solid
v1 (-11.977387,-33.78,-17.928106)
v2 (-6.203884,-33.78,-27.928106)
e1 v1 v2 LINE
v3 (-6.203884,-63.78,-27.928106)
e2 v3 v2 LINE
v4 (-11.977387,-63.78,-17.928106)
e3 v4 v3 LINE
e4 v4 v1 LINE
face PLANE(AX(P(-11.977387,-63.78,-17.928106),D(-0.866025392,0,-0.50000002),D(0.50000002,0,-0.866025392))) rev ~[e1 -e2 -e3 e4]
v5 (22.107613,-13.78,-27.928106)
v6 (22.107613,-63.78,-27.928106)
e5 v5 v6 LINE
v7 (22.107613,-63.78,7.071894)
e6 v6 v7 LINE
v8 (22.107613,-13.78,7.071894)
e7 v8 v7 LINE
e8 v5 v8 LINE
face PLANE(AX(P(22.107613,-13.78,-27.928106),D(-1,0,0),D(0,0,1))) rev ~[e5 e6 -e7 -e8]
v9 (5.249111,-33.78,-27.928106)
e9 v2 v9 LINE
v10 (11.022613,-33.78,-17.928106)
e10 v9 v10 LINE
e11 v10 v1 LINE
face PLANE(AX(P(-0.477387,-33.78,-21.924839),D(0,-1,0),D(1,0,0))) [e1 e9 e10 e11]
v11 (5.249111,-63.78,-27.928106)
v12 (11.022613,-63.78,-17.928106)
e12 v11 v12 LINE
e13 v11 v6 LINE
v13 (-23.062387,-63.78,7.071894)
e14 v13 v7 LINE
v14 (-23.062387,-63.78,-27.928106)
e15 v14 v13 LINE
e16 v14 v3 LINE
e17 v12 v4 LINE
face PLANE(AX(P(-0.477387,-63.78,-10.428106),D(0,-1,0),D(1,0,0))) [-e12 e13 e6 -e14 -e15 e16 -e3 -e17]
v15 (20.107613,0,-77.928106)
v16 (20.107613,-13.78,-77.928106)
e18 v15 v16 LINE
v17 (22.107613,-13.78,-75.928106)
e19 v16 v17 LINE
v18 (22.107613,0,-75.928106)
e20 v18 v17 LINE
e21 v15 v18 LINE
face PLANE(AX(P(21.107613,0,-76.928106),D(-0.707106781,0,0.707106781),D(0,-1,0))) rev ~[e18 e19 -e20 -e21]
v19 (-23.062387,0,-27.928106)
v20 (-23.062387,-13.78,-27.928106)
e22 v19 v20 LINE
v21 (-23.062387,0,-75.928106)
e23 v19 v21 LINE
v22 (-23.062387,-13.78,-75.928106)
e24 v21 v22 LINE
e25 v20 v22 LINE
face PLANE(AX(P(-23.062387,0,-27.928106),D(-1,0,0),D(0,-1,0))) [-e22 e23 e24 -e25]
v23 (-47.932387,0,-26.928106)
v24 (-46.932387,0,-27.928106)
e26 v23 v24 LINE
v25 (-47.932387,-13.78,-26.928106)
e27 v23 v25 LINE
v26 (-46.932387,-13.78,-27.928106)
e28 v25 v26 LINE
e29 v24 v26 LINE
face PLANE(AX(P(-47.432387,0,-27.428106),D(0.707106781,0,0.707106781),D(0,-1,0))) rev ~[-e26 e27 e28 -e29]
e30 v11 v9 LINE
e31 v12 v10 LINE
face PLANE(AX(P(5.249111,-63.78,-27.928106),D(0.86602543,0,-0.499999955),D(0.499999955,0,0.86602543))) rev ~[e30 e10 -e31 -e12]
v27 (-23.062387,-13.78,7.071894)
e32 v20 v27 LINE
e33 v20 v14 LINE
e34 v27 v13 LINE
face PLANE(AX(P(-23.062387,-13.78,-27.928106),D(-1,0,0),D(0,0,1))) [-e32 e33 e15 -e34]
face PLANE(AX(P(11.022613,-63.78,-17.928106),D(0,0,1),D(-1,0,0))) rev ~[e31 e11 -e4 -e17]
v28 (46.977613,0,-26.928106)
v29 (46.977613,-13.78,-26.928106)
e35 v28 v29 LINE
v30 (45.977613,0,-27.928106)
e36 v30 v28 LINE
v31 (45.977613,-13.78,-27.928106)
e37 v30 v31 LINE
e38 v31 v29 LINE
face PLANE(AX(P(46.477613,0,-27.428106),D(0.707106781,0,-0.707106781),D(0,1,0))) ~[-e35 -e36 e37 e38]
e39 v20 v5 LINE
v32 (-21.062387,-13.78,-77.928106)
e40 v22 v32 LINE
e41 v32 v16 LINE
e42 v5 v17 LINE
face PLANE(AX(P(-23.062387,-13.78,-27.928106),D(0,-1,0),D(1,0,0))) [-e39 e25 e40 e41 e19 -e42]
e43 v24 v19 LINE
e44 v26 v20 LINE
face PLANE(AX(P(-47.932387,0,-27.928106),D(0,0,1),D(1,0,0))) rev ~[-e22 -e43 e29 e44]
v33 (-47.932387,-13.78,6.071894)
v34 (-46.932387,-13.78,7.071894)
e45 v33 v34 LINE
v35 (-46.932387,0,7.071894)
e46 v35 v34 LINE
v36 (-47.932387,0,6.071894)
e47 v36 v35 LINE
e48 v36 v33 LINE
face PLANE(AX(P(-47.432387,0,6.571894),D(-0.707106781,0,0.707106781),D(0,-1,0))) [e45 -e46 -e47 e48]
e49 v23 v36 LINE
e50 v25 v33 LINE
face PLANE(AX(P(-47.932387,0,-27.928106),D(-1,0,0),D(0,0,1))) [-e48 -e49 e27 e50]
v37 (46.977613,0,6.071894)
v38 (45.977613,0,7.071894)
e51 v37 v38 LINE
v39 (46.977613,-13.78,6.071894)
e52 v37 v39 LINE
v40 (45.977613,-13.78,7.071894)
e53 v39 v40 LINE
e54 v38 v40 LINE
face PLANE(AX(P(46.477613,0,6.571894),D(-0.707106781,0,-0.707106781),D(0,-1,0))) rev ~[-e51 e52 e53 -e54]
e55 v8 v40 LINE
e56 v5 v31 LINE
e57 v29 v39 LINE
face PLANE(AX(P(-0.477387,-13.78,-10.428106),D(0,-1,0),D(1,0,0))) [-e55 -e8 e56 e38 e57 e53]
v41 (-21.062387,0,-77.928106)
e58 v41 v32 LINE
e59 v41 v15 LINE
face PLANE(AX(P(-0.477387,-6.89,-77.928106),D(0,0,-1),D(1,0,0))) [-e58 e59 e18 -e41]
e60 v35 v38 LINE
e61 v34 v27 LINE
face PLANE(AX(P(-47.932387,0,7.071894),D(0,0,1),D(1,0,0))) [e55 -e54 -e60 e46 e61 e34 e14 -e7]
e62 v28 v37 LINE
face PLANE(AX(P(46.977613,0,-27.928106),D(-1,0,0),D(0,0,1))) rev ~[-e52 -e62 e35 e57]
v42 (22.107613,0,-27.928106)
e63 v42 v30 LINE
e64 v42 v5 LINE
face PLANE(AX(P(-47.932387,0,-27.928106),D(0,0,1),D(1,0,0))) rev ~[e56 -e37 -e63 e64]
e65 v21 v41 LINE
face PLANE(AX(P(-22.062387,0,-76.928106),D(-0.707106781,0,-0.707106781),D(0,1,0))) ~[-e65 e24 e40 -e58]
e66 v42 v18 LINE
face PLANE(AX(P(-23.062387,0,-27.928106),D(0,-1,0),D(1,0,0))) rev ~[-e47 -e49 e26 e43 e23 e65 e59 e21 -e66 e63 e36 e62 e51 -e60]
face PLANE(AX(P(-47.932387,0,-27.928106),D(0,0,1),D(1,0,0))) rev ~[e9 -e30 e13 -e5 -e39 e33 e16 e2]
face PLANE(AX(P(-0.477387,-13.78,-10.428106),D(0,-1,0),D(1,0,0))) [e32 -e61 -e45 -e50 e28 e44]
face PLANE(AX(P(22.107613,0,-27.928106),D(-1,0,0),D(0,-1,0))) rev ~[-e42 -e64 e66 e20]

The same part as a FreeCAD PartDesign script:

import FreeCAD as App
import Part
import Sketcher
Q = App.Units.Quantity


def edges_at(feature, points):
    """Names of the edges that pass closest to the given points."""
    edges = feature.Shape.Edges
    near = lambda p: min(range(len(edges)), key=lambda i: edges[i].distToShape(Part.Vertex(*p))[0])
    return sorted({f"Edge{near(p) + 1}" for p in points})

doc = App.newDocument("Part")
body = doc.addObject("PartDesign::Body", "Body")

sketch1 = doc.addObject("Sketcher::SketchObject", "Sketch")
body.addObject(sketch1)
sketch1.AttachmentSupport = (doc.XZ_Plane, [""])
sketch1.MapMode = "FlatFace"
sketch1.addGeometry([
    Part.LineSegment(App.Vector(-48, 7, 0), App.Vector(-48, -28, 0)),
    Part.LineSegment(App.Vector(-48, -28, 0), App.Vector(47, -28, 0)),
    Part.LineSegment(App.Vector(47, -28, 0), App.Vector(47, 7, 0)),
    Part.LineSegment(App.Vector(47, 7, 0), App.Vector(-48, 7, 0)),
], False)
sketch1.addConstraint([
    Sketcher.Constraint("Coincident", 0, 2, 1, 1),
    Sketcher.Constraint("Coincident", 1, 2, 2, 1),
    Sketcher.Constraint("Coincident", 2, 2, 3, 1),
    Sketcher.Constraint("Coincident", 3, 2, 0, 1),
    Sketcher.Constraint("Vertical", 0),
    Sketcher.Constraint("Horizontal", 1),
    Sketcher.Constraint("Vertical", 2),
    Sketcher.Constraint("Horizontal", 3),
    Sketcher.Constraint("DistanceY", 0, 2, 0, 1, 35.0),
    Sketcher.Constraint("DistanceX", 1, 1, 1, 2, 94.91),
    Sketcher.Constraint("DistanceX", 0, 2, -1, 1, 47.932387),
    Sketcher.Constraint("DistanceY", 0, 2, -1, 1, 27.928106),
])
pad1 = doc.addObject("PartDesign::Pad", "Pad")
body.addObject(pad1)
pad1.Profile = sketch1
pad1.Length = 13.78
doc.recompute()

chamfer = doc.addObject("PartDesign::Chamfer", "Chamfer")
body.addObject(chamfer)
chamfer.Base = (pad1, edges_at(pad1, [
    (-47.932, -6.89, -27.928),
    (46.978, -6.89, -27.928),
    (46.978, -6.89, 7.072),
    (-47.932, -6.89, 7.072),
]))
chamfer.Size = 1

sketch2 = doc.addObject("Sketcher::SketchObject", "Sketch001")
body.addObject(sketch2)
sketch2.AttachmentSupport = (doc.XZ_Plane, [""])
sketch2.MapMode = "FlatFace"
sketch2.AttachmentOffset = App.Placement(App.Vector(0, 0, 13.78), App.Rotation())
sketch2.addGeometry([
    Part.LineSegment(App.Vector(-23, 7, 0), App.Vector(-23, -28, 0)),
    Part.LineSegment(App.Vector(-23, -28, 0), App.Vector(22, -28, 0)),
    Part.LineSegment(App.Vector(22, -28, 0), App.Vector(22, 7, 0)),
    Part.LineSegment(App.Vector(22, 7, 0), App.Vector(-23, 7, 0)),
], False)
sketch2.addConstraint([
    Sketcher.Constraint("Coincident", 0, 2, 1, 1),
    Sketcher.Constraint("Coincident", 1, 2, 2, 1),
    Sketcher.Constraint("Coincident", 2, 2, 3, 1),
    Sketcher.Constraint("Coincident", 3, 2, 0, 1),
    Sketcher.Constraint("Vertical", 0),
    Sketcher.Constraint("Horizontal", 1),
    Sketcher.Constraint("Vertical", 2),
    Sketcher.Constraint("Horizontal", 3),
    Sketcher.Constraint("DistanceY", 0, 2, 0, 1, 35.0),
    Sketcher.Constraint("DistanceX", 1, 1, 1, 2, 45.17),
    Sketcher.Constraint("DistanceX", 0, 2, -1, 1, 23.062387),
    Sketcher.Constraint("DistanceY", 0, 2, -1, 1, 27.928106),
])
pad2 = doc.addObject("PartDesign::Pad", "Pad001")
body.addObject(pad2)
pad2.Profile = sketch2
pad2.Length = 50

sketch3 = doc.addObject("Sketcher::SketchObject", "Sketch002")
body.addObject(sketch3)
sketch3.AttachmentSupport = (doc.XY_Plane, [""])
sketch3.MapMode = "FlatFace"
sketch3.AttachmentOffset = App.Placement(App.Vector(0, 0, -27.928106), App.Rotation())
sketch3.addGeometry([
    Part.LineSegment(App.Vector(-23, -14, 0), App.Vector(-23, 0, 0)),
    Part.LineSegment(App.Vector(-23, 0, 0), App.Vector(22, 0, 0)),
    Part.LineSegment(App.Vector(22, 0, 0), App.Vector(22, -14, 0)),
    Part.LineSegment(App.Vector(22, -14, 0), App.Vector(-23, -14, 0)),
], False)
sketch3.addConstraint([
    Sketcher.Constraint("Coincident", 0, 2, 1, 1),
    Sketcher.Constraint("Coincident", 1, 2, 2, 1),
    Sketcher.Constraint("Coincident", 2, 2, 3, 1),
    Sketcher.Constraint("Coincident", 3, 2, 0, 1),
    Sketcher.Constraint("Vertical", 0),
    Sketcher.Constraint("Horizontal", 1),
    Sketcher.Constraint("Vertical", 2),
    Sketcher.Constraint("Horizontal", 3),
    Sketcher.Constraint("PointOnObject", 0, 2, -1),
    Sketcher.Constraint("DistanceX", 1, 1, 1, 2, 45.17),
    Sketcher.Constraint("DistanceY", 0, 1, 0, 2, 13.78),
    Sketcher.Constraint("DistanceX", 0, 2, -1, 1, 23.062387),
])
pad3 = doc.addObject("PartDesign::Pad", "Pad002")
body.addObject(pad3)
pad3.Profile = sketch3
pad3.Length = 50
pad3.Reversed = True

sketch4 = doc.addObject("Sketcher::SketchObject", "Sketch003")
body.addObject(sketch4)
sketch4.AttachmentSupport = (doc.XZ_Plane, [""])
sketch4.MapMode = "FlatFace"
sketch4.AttachmentOffset = App.Placement(App.Vector(0, 0, 63.78), App.Rotation())
sketch4.addGeometry([
    Part.LineSegment(App.Vector(11, -18, 0), App.Vector(-12, -18, 0)),
    Part.LineSegment(App.Vector(-12, -18, 0), App.Vector(-6, -28, 0)),
    Part.LineSegment(App.Vector(-6, -28, 0), App.Vector(5, -28, 0)),
    Part.LineSegment(App.Vector(5, -28, 0), App.Vector(11, -18, 0)),
], False)
sketch4.addConstraint([
    Sketcher.Constraint("Coincident", 0, 2, 1, 1),
    Sketcher.Constraint("Coincident", 1, 2, 2, 1),
    Sketcher.Constraint("Coincident", 2, 2, 3, 1),
    Sketcher.Constraint("Coincident", 3, 2, 0, 1),
    Sketcher.Constraint("Horizontal", 0),
    Sketcher.Constraint("Horizontal", 2),
    Sketcher.Constraint("Equal", 1, 3),
    Sketcher.Constraint("DistanceX", 0, 2, 0, 1, 23.0),
    Sketcher.Constraint("Angle", 1, Q("-59.999999 deg")),
    Sketcher.Constraint("DistanceY", 1, 2, 0, 2, 10.0),
    Sketcher.Constraint("DistanceX", -1, 1, 2, 2, 5.249111),
    Sketcher.Constraint("DistanceY", 0, 2, -1, 1, 17.928106),
])
pocket1 = doc.addObject("PartDesign::Pocket", "Pocket")
body.addObject(pocket1)
pocket1.Profile = sketch4
pocket1.Length = 30
doc.recompute()

chamfer2 = doc.addObject("PartDesign::Chamfer", "Chamfer001")
body.addObject(chamfer2)
chamfer2.Base = (pocket1, edges_at(pocket1, [(-23.062, -6.89, -77.928), (22.108, -6.89, -77.928)]))
chamfer2.Size = 2

doc.recompute()
